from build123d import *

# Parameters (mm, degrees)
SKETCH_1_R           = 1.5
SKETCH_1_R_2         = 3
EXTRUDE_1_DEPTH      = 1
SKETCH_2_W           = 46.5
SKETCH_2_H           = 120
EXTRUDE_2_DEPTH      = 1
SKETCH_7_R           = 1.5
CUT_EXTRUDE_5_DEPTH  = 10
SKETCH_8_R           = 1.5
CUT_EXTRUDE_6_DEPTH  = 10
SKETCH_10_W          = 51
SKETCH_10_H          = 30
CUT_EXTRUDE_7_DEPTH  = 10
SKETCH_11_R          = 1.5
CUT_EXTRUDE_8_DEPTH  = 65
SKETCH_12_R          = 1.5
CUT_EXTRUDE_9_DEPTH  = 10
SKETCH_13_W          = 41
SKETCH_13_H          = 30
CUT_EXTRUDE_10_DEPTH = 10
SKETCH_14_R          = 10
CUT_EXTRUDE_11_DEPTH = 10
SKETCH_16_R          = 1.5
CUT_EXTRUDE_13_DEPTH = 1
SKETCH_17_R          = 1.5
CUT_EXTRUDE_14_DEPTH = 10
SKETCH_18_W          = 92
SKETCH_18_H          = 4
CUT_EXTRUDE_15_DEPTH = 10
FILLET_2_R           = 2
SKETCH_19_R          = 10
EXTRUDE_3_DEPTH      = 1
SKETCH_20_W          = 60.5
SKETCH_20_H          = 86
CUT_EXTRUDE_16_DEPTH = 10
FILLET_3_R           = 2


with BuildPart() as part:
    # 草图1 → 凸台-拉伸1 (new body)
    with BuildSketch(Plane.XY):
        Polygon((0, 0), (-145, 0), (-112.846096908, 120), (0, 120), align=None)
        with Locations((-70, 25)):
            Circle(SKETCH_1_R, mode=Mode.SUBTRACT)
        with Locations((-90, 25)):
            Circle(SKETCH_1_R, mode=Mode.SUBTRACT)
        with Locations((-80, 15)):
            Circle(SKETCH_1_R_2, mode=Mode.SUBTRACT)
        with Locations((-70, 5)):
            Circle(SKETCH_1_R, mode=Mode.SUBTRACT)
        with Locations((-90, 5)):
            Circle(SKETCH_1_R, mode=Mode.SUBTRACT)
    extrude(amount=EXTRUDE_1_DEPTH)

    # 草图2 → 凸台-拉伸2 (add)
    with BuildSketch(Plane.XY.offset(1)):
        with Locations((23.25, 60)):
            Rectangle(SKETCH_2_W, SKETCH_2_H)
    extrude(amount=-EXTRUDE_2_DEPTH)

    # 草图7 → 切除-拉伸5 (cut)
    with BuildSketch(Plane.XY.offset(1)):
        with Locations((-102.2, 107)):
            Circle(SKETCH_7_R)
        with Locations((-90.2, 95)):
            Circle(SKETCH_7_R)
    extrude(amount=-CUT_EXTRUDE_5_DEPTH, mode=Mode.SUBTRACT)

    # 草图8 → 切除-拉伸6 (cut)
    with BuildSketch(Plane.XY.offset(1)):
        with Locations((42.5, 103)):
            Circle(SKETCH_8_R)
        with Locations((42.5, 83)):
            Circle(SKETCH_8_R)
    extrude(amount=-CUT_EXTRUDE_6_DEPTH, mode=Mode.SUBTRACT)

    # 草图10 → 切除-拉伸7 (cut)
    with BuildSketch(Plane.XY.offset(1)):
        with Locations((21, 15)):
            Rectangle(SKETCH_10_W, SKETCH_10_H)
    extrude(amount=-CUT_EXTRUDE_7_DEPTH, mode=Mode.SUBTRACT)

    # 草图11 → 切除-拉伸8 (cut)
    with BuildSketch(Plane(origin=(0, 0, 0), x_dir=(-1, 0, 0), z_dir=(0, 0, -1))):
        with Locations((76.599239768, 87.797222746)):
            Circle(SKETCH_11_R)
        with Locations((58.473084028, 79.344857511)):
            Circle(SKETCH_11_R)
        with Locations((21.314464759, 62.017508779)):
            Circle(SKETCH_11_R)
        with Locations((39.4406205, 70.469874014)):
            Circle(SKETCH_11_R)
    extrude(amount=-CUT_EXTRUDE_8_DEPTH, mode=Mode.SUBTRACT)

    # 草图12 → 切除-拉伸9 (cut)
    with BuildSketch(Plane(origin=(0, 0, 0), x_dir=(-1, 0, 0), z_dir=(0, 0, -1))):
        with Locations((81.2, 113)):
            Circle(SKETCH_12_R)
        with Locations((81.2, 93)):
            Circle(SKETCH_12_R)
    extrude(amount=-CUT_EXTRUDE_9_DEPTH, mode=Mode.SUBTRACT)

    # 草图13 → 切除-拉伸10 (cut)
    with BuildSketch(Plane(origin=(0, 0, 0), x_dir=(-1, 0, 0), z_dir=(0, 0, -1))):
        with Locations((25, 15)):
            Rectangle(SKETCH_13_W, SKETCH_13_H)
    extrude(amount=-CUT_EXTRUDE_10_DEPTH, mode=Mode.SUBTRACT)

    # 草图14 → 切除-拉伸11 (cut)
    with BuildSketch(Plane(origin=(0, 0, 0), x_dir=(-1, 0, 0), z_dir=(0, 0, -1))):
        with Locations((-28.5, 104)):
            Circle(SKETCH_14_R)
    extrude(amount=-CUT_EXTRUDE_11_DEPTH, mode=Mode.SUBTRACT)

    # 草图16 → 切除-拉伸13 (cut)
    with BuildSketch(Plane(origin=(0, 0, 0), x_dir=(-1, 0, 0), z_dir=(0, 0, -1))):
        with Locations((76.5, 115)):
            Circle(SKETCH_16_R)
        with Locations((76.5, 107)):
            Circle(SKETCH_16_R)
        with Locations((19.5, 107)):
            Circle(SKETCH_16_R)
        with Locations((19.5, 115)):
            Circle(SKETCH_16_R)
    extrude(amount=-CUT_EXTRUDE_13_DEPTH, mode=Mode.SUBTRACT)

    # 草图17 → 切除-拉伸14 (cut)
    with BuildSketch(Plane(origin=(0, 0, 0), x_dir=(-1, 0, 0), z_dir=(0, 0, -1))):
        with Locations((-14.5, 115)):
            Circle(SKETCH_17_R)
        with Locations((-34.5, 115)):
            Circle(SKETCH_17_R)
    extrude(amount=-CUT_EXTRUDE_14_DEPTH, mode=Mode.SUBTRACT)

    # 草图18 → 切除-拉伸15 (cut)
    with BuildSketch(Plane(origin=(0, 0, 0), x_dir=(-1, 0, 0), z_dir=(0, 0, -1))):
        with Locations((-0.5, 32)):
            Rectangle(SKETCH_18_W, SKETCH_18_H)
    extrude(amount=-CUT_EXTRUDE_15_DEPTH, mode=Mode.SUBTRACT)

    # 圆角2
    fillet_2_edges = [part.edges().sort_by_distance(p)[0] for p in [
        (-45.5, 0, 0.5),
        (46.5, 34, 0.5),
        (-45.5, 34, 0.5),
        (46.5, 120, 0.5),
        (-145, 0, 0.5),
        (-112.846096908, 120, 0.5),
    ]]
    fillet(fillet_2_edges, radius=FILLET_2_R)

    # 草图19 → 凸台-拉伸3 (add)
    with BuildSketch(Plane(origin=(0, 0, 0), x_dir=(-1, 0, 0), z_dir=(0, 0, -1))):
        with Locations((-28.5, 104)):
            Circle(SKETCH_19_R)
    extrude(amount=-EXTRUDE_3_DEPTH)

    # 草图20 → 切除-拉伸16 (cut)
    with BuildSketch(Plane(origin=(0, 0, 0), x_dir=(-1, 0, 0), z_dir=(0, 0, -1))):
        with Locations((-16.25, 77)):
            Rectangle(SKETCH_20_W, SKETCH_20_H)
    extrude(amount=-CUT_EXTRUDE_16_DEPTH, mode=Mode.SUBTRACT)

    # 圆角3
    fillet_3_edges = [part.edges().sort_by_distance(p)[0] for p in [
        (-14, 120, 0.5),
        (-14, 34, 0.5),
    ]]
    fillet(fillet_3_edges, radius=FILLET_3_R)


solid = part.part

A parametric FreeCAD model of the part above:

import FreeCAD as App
import Part
import Sketcher
Q = App.Units.Quantity


def edges_at(feature, points):
    """Names of the edges that pass closest to the given points."""
    edges = feature.Shape.Edges
    near = lambda p: min(range(len(edges)), key=lambda i: edges[i].distToShape(Part.Vertex(*p))[0])
    return sorted({f"Edge{near(p) + 1}" for p in points})

doc = App.newDocument("Part")
params = doc.addObject("Spreadsheet::Sheet", "Params")
for row, (alias, value) in enumerate([
    ("sketch1_diameter", "3 mm"),
    ("sketch1_diameter2", "6 mm"),
    ("sketch1_width", "145 mm"),
    ("sketch1_height", "120 mm"),
    ("pad1_length", "1 mm"),
    ("sketch2_height", "120 mm"),
    ("sketch2_width", "46.5 mm"),
    ("pad2_length", "1 mm"),
    ("sketch3_diameter", "3 mm"),
    ("pocket1_length", "10 mm"),
    ("sketch4_diameter", "3 mm"),
    ("pocket2_length", "10 mm"),
    ("sketch5_width", "51 mm"),
    ("sketch5_height", "30 mm"),
    ("pocket3_length", "10 mm"),
    ("sketch6_diameter", "3 mm"),
    ("pocket4_length", "65 mm"),
    ("sketch7_diameter", "3 mm"),
    ("pocket5_length", "10 mm"),
    ("sketch8_width", "41 mm"),
    ("sketch8_height", "30 mm"),
    ("pocket6_length", "10 mm"),
    ("sketch9_diameter", "20 mm"),
    ("pocket7_length", "10 mm"),
    ("sketch10_diameter", "3 mm"),
    ("pocket8_length", "1 mm"),
    ("sketch11_diameter", "3 mm"),
    ("pocket9_length", "10 mm"),
    ("sketch12_width", "92 mm"),
    ("sketch12_height", "4 mm"),
    ("pocket10_length", "10 mm"),
    ("fillet_radius", "2 mm"),
    ("sketch13_diameter", "20 mm"),
    ("pad3_length", "1 mm"),
    ("sketch14_height", "86 mm"),
    ("sketch14_width", "60.5 mm"),
    ("pocket11_length", "10 mm"),
    ("fillet2_radius", "2 mm"),
], start=1):
    params.set(f"A{row}", alias)
    params.set(f"B{row}", "=" + value)
    params.setAlias(f"B{row}", alias)

body = doc.addObject("PartDesign::Body", "Body")

sketch1 = body.newObject("Sketcher::SketchObject", "Sketch")
sketch1.AttachmentSupport = (doc.getObject("XY_Plane"), [""])
sketch1.MapMode = "FlatFace"
sketch1.addGeometry([
    Part.LineSegment(App.Vector(-145, 0, 0), App.Vector(0, 0, 0)),
    Part.LineSegment(App.Vector(0, 0, 0), App.Vector(0, 120, 0)),
    Part.LineSegment(App.Vector(0, 120, 0), App.Vector(-112.8, 120, 0)),
    Part.LineSegment(App.Vector(-112.8, 120, 0), App.Vector(-145, 0, 0)),
    Part.Circle(App.Vector(-70, 5, 0), App.Vector(0, 0, 1), 1.5),
    Part.Circle(App.Vector(-90, 5, 0), App.Vector(0, 0, 1), 1.5),
    Part.Circle(App.Vector(-70, 25, 0), App.Vector(0, 0, 1), 1.5),
    Part.Circle(App.Vector(-80, 15, 0), App.Vector(0, 0, 1), 3),
    Part.Circle(App.Vector(-90, 25, 0), App.Vector(0, 0, 1), 1.5),
], False)
sketch1.addConstraint([
    Sketcher.Constraint("Coincident", 0, 2, 1, 1),
    Sketcher.Constraint("Coincident", 1, 2, 2, 1),
    Sketcher.Constraint("Coincident", 2, 2, 3, 1),
    Sketcher.Constraint("Coincident", 3, 2, 0, 1),
    Sketcher.Constraint("Horizontal", 0),
    Sketcher.Constraint("Vertical", 1),
    Sketcher.Constraint("Horizontal", 2),
    Sketcher.Constraint("Coincident", 0, 2, -1, 1),
    Sketcher.Constraint("Equal", 4, 5),
    Sketcher.Constraint("Equal", 5, 6),
    Sketcher.Constraint("Equal", 6, 8),
    Sketcher.Constraint("Horizontal", 4, 3, 5, 3),
    Sketcher.Constraint("Horizontal", 6, 3, 8, 3),
    Sketcher.Constraint("Vertical", 4, 3, 6, 3),
    Sketcher.Constraint("Vertical", 5, 3, 8, 3),
    Sketcher.Constraint("Diameter", 4, 3.0),
    Sketcher.Constraint("Diameter", 7, 6.0),
    Sketcher.Constraint("DistanceX", 0, 1, 0, 2, 145.0),
    Sketcher.Constraint("DistanceY", 1, 1, 1, 2, 120.0),
    Sketcher.Constraint("Angle", 3, Q("-105 deg")),
    Sketcher.Constraint("DistanceX", 4, 3, -1, 1, 70.0),
    Sketcher.Constraint("DistanceY", -1, 1, 4, 3, 5.0),
    Sketcher.Constraint("DistanceX", 5, 3, -1, 1, 90.0),
    Sketcher.Constraint("DistanceY", -1, 1, 6, 3, 25.0),
    Sketcher.Constraint("DistanceX", 7, 3, -1, 1, 80.0),
    Sketcher.Constraint("DistanceY", -1, 1, 7, 3, 15.0),
])
sketch1.setExpression("Constraints[15]", "Params.sketch1_diameter")
sketch1.setExpression("Constraints[16]", "Params.sketch1_diameter2")
sketch1.setExpression("Constraints[17]", "Params.sketch1_width")
sketch1.setExpression("Constraints[18]", "Params.sketch1_height")
pad1 = body.newObject("PartDesign::Pad", "Pad")
pad1.Profile = sketch1
pad1.setExpression("Length", "Params.pad1_length")

sketch2 = body.newObject("Sketcher::SketchObject", "Sketch001")
sketch2.AttachmentSupport = (doc.getObject("XY_Plane"), [""])
sketch2.MapMode = "FlatFace"
sketch2.AttachmentOffset = App.Placement(App.Vector(0, 0, 1), App.Rotation())
sketch2.addGeometry([
    Part.LineSegment(App.Vector(0, 120, 0), App.Vector(0, 0, 0)),
    Part.LineSegment(App.Vector(0, 0, 0), App.Vector(46, 0, 0)),
    Part.LineSegment(App.Vector(46, 0, 0), App.Vector(46, 120, 0)),
    Part.LineSegment(App.Vector(46, 120, 0), App.Vector(0, 120, 0)),
], False)
sketch2.addConstraint([
    Sketcher.Constraint("Coincident", 0, 2, 1, 1),
    Sketcher.Constraint("Coincident", 1, 2, 2, 1),
    Sketcher.Constraint("Coincident", 2, 2, 3, 1),
    Sketcher.Constraint("Coincident", 3, 2, 0, 1),
    Sketcher.Constraint("Vertical", 0),
    Sketcher.Constraint("Horizontal", 1),
    Sketcher.Constraint("Vertical", 2),
    Sketcher.Constraint("Horizontal", 3),
    Sketcher.Constraint("Coincident", 0, 2, -1, 1),
    Sketcher.Constraint("DistanceY", 0, 2, 0, 1, 120.0),
    Sketcher.Constraint("DistanceX", 1, 1, 1, 2, 46.5),
])
sketch2.setExpression("Constraints[9]", "Params.sketch2_height")
sketch2.setExpression("Constraints[10]", "Params.sketch2_width")
pad2 = body.newObject("PartDesign::Pad", "Pad001")
pad2.Profile = sketch2
pad2.setExpression("Length", "Params.pad2_length")
pad2.Reversed = True

sketch3 = body.newObject("Sketcher::SketchObject", "Sketch002")
sketch3.AttachmentSupport = (doc.getObject("XY_Plane"), [""])
sketch3.MapMode = "FlatFace"
sketch3.AttachmentOffset = App.Placement(App.Vector(0, 0, 1), App.Rotation())
sketch3.addGeometry([
    Part.Circle(App.Vector(-102.2, 107, 0), App.Vector(0, 0, 1), 1.5),
    Part.Circle(App.Vector(-90.2, 95, 0), App.Vector(0, 0, 1), 1.5),
], False)
sketch3.addConstraint([
    Sketcher.Constraint("Equal", 0, 1),
    Sketcher.Constraint("Diameter", 0, 3.0),
    Sketcher.Constraint("DistanceY", -1, 1, 0, 3, 107.0),
    Sketcher.Constraint("DistanceY", -1, 1, 1, 3, 95.0),
    Sketcher.Constraint("DistanceX", 0, 3, 1, 3, 12.0),
    Sketcher.Constraint("DistanceX", 0, 3, -1, 1, 102.2),
])
sketch3.setExpression("Constraints[1]", "Params.sketch3_diameter")
pocket1 = body.newObject("PartDesign::Pocket", "Pocket")
pocket1.Profile = sketch3
pocket1.setExpression("Length", "Params.pocket1_length")

sketch4 = body.newObject("Sketcher::SketchObject", "Sketch003")
sketch4.AttachmentSupport = (doc.getObject("XY_Plane"), [""])
sketch4.MapMode = "FlatFace"
sketch4.AttachmentOffset = App.Placement(App.Vector(0, 0, 1), App.Rotation())
sketch4.addGeometry([
    Part.Circle(App.Vector(42.5, 103, 0), App.Vector(0, 0, 1), 1.5),
    Part.Circle(App.Vector(42.5, 83, 0), App.Vector(0, 0, 1), 1.5),
], False)
sketch4.addConstraint([
    Sketcher.Constraint("Equal", 0, 1),
    Sketcher.Constraint("Vertical", 0, 3, 1, 3),
    Sketcher.Constraint("Diameter", 0, 3.0),
    Sketcher.Constraint("DistanceY", -1, 1, 0, 3, 103.0),
    Sketcher.Constraint("DistanceY", -1, 1, 1, 3, 83.0),
    Sketcher.Constraint("DistanceX", -1, 1, 0, 3, 42.5),
])
sketch4.setExpression("Constraints[2]", "Params.sketch4_diameter")
pocket2 = body.newObject("PartDesign::Pocket", "Pocket001")
pocket2.Profile = sketch4
pocket2.setExpression("Length", "Params.pocket2_length")

sketch5 = body.newObject("Sketcher::SketchObject", "Sketch004")
sketch5.AttachmentSupport = (doc.getObject("XY_Plane"), [""])
sketch5.MapMode = "FlatFace"
sketch5.AttachmentOffset = App.Placement(App.Vector(0, 0, 1), App.Rotation())
sketch5.addGeometry([
    Part.LineSegment(App.Vector(-4, 30, 0), App.Vector(-4, 0, 0)),
    Part.LineSegment(App.Vector(-4, 0, 0), App.Vector(46, 0, 0)),
    Part.LineSegment(App.Vector(46, 0, 0), App.Vector(46, 30, 0)),
    Part.LineSegment(App.Vector(46, 30, 0), App.Vector(-4, 30, 0)),
], False)
sketch5.addConstraint([
    Sketcher.Constraint("Coincident", 0, 2, 1, 1),
    Sketcher.Constraint("Coincident", 1, 2, 2, 1),
    Sketcher.Constraint("Coincident", 2, 2, 3, 1),
    Sketcher.Constraint("Coincident", 3, 2, 0, 1),
    Sketcher.Constraint("Vertical", 0),
    Sketcher.Constraint("Horizontal", 1),
    Sketcher.Constraint("Vertical", 2),
    Sketcher.Constraint("Horizontal", 3),
    Sketcher.Constraint("PointOnObject", 0, 2, -1),
    Sketcher.Constraint("DistanceX", 1, 1, 1, 2, 51.0),
    Sketcher.Constraint("DistanceY", 0, 2, 0, 1, 30.0),
    Sketcher.Constraint("DistanceX", 0, 2, -1, 1, 4.5),
])
sketch5.setExpression("Constraints[9]", "Params.sketch5_width")
sketch5.setExpression("Constraints[10]", "Params.sketch5_height")
pocket3 = body.newObject("PartDesign::Pocket", "Pocket002")
pocket3.Profile = sketch5
pocket3.setExpression("Length", "Params.pocket3_length")

sketch6 = body.newObject("Sketcher::SketchObject", "Sketch005")
sketch6.AttachmentSupport = (doc.getObject("XY_Plane"), [""])
sketch6.MapMode = "FlatFace"
sketch6.addGeometry([
    Part.Circle(App.Vector(-76.6, 87.8, 0), App.Vector(0, 0, 1), 1.5),
    Part.Circle(App.Vector(-58.5, 79.3, 0), App.Vector(0, 0, 1), 1.5),
    Part.Circle(App.Vector(-21.3, 62, 0), App.Vector(0, 0, 1), 1.5),
    Part.Circle(App.Vector(-39.4, 70.5, 0), App.Vector(0, 0, 1), 1.5),
], False)
sketch6.addConstraint([
    Sketcher.Constraint("Equal", 0, 1),
    Sketcher.Constraint("Equal", 1, 2),
    Sketcher.Constraint("Equal", 2, 3),
    Sketcher.Constraint("Diameter", 0, 3.0),
    Sketcher.Constraint("DistanceX", 0, 3, -1, 1, 76.59924),
    Sketcher.Constraint("DistanceY", -1, 1, 2, 3, 62.017509),
    Sketcher.Constraint("DistanceX", 3, 3, -1, 1, 39.440621),
    Sketcher.Constraint("DistanceX", 1, 3, 2, 3, 37.158619),
    Sketcher.Constraint("DistanceY", 2, 3, 1, 3, 17.327349),
    Sketcher.Constraint("DistanceY", 3, 3, 0, 3, 17.327349),
    Sketcher.Constraint("DistanceY", -1, 1, 0, 3, 87.797223),
    Sketcher.Constraint("DistanceX", 1, 3, -1, 1, 58.473084),
])
sketch6.setExpression("Constraints[3]", "Params.sketch6_diameter")
pocket4 = body.newObject("PartDesign::Pocket", "Pocket003")
pocket4.Profile = sketch6
pocket4.setExpression("Length", "Params.pocket4_length")
pocket4.Reversed = True

sketch7 = body.newObject("Sketcher::SketchObject", "Sketch006")
sketch7.AttachmentSupport = (doc.getObject("XY_Plane"), [""])
sketch7.MapMode = "FlatFace"
sketch7.addGeometry([
    Part.Circle(App.Vector(-81.2, 113, 0), App.Vector(0, 0, 1), 1.5),
    Part.Circle(App.Vector(-81.2, 93, 0), App.Vector(0, 0, 1), 1.5),
], False)
sketch7.addConstraint([
    Sketcher.Constraint("Equal", 0, 1),
    Sketcher.Constraint("Vertical", 0, 3, 1, 3),
    Sketcher.Constraint("Diameter", 0, 3.0),
    Sketcher.Constraint("DistanceY", -1, 1, 0, 3, 113.0),
    Sketcher.Constraint("DistanceY", -1, 1, 1, 3, 93.0),
    Sketcher.Constraint("DistanceX", 0, 3, -1, 1, 81.2),
])
sketch7.setExpression("Constraints[2]", "Params.sketch7_diameter")
pocket5 = body.newObject("PartDesign::Pocket", "Pocket004")
pocket5.Profile = sketch7
pocket5.setExpression("Length", "Params.pocket5_length")
pocket5.Reversed = True

sketch8 = body.newObject("Sketcher::SketchObject", "Sketch007")
sketch8.AttachmentSupport = (doc.getObject("XY_Plane"), [""])
sketch8.MapMode = "FlatFace"
sketch8.addGeometry([
    Part.LineSegment(App.Vector(-4, 30, 0), App.Vector(-4, 0, 0)),
    Part.LineSegment(App.Vector(-4, 0, 0), App.Vector(-46, 0, 0)),
    Part.LineSegment(App.Vector(-46, 0, 0), App.Vector(-46, 30, 0)),
    Part.LineSegment(App.Vector(-46, 30, 0), App.Vector(-4, 30, 0)),
], False)
sketch8.addConstraint([
    Sketcher.Constraint("Coincident", 0, 2, 1, 1),
    Sketcher.Constraint("Coincident", 1, 2, 2, 1),
    Sketcher.Constraint("Coincident", 2, 2, 3, 1),
    Sketcher.Constraint("Coincident", 3, 2, 0, 1),
    Sketcher.Constraint("Vertical", 0),
    Sketcher.Constraint("Horizontal", 1),
    Sketcher.Constraint("Vertical", 2),
    Sketcher.Constraint("Horizontal", 3),
    Sketcher.Constraint("PointOnObject", 0, 2, -1),
    Sketcher.Constraint("DistanceX", 1, 2, 1, 1, 41.0),
    Sketcher.Constraint("DistanceY", 0, 2, 0, 1, 30.0),
    Sketcher.Constraint("DistanceX", 0, 2, -1, 1, 4.5),
])
sketch8.setExpression("Constraints[9]", "Params.sketch8_width")
sketch8.setExpression("Constraints[10]", "Params.sketch8_height")
pocket6 = body.newObject("PartDesign::Pocket", "Pocket005")
pocket6.Profile = sketch8
pocket6.setExpression("Length", "Params.pocket6_length")
pocket6.Reversed = True

sketch9 = body.newObject("Sketcher::SketchObject", "Sketch008")
sketch9.AttachmentSupport = (doc.getObject("XY_Plane"), [""])
sketch9.MapMode = "FlatFace"
sketch9.addGeometry(Part.Circle(App.Vector(28, 104, 0), App.Vector(0, 0, 1), 10), False)
sketch9.addConstraint([
    Sketcher.Constraint("Diameter", 0, 20.0),
    Sketcher.Constraint("DistanceY", -1, 1, 0, 3, 104.0),
    Sketcher.Constraint("DistanceX", -1, 1, 0, 3, 28.5),
])
sketch9.setExpression("Constraints[0]", "Params.sketch9_diameter")
pocket7 = body.newObject("PartDesign::Pocket", "Pocket006")
pocket7.Profile = sketch9
pocket7.setExpression("Length", "Params.pocket7_length")
pocket7.Reversed = True

sketch10 = body.newObject("Sketcher::SketchObject", "Sketch009")
sketch10.AttachmentSupport = (doc.getObject("XY_Plane"), [""])
sketch10.MapMode = "FlatFace"
sketch10.addGeometry([
    Part.Circle(App.Vector(-76.5, 115, 0), App.Vector(0, 0, 1), 1.5),
    Part.Circle(App.Vector(-76.5, 107, 0), App.Vector(0, 0, 1), 1.5),
    Part.Circle(App.Vector(-19.5, 107, 0), App.Vector(0, 0, 1), 1.5),
    Part.Circle(App.Vector(-19.5, 115, 0), App.Vector(0, 0, 1), 1.5),
], False)
sketch10.addConstraint([
    Sketcher.Constraint("Equal", 0, 1),
    Sketcher.Constraint("Equal", 1, 2),
    Sketcher.Constraint("Equal", 2, 3),
    Sketcher.Constraint("Horizontal", 1, 3, 2, 3),
    Sketcher.Constraint("Horizontal", 0, 3, 3, 3),
    Sketcher.Constraint("Vertical", 0, 3, 1, 3),
    Sketcher.Constraint("Vertical", 2, 3, 3, 3),
    Sketcher.Constraint("Diameter", 0, 3.0),
    Sketcher.Constraint("DistanceY", -1, 1, 0, 3, 115.0),
    Sketcher.Constraint("DistanceY", -1, 1, 1, 3, 107.0),
    Sketcher.Constraint("DistanceX", 1, 3, 2, 3, 57.0),
    Sketcher.Constraint("DistanceX", 0, 3, -1, 1, 76.5),
])
sketch10.setExpression("Constraints[7]", "Params.sketch10_diameter")
pocket8 = body.newObject("PartDesign::Pocket", "Pocket007")
pocket8.Profile = sketch10
pocket8.setExpression("Length", "Params.pocket8_length")
pocket8.Reversed = True

sketch11 = body.newObject("Sketcher::SketchObject", "Sketch010")
sketch11.AttachmentSupport = (doc.getObject("XY_Plane"), [""])
sketch11.MapMode = "FlatFace"
sketch11.addGeometry([
    Part.Circle(App.Vector(14.5, 115, 0), App.Vector(0, 0, 1), 1.5),
    Part.Circle(App.Vector(34.5, 115, 0), App.Vector(0, 0, 1), 1.5),
], False)
sketch11.addConstraint([
    Sketcher.Constraint("Equal", 0, 1),
    Sketcher.Constraint("Horizontal", 0, 3, 1, 3),
    Sketcher.Constraint("Diameter", 0, 3.0),
    Sketcher.Constraint("DistanceY", -1, 1, 0, 3, 115.0),
    Sketcher.Constraint("DistanceX", 0, 3, 1, 3, 20.0),
    Sketcher.Constraint("DistanceX", -1, 1, 0, 3, 14.5),
])
sketch11.setExpression("Constraints[2]", "Params.sketch11_diameter")
pocket9 = body.newObject("PartDesign::Pocket", "Pocket008")
pocket9.Profile = sketch11
pocket9.setExpression("Length", "Params.pocket9_length")
pocket9.Reversed = True

sketch12 = body.newObject("Sketcher::SketchObject", "Sketch011")
sketch12.AttachmentSupport = (doc.getObject("XY_Plane"), [""])
sketch12.MapMode = "FlatFace"
sketch12.addGeometry([
    Part.LineSegment(App.Vector(46.5, 34, 0), App.Vector(46.5, 30, 0)),
    Part.LineSegment(App.Vector(46.5, 30, 0), App.Vector(-45.5, 30, 0)),
    Part.LineSegment(App.Vector(-45.5, 30, 0), App.Vector(-45.5, 34, 0)),
    Part.LineSegment(App.Vector(-45.5, 34, 0), App.Vector(46.5, 34, 0)),
], False)
sketch12.addConstraint([
    Sketcher.Constraint("Coincident", 0, 2, 1, 1),
    Sketcher.Constraint("Coincident", 1, 2, 2, 1),
    Sketcher.Constraint("Coincident", 2, 2, 3, 1),
    Sketcher.Constraint("Coincident", 3, 2, 0, 1),
    Sketcher.Constraint("Vertical", 0),
    Sketcher.Constraint("Horizontal", 1),
    Sketcher.Constraint("Vertical", 2),
    Sketcher.Constraint("Horizontal", 3),
    Sketcher.Constraint("DistanceX", 1, 2, 1, 1, 92.0),
    Sketcher.Constraint("DistanceY", 0, 2, 0, 1, 4.0),
    Sketcher.Constraint("DistanceY", -1, 1, 0, 2, 30.0),
    Sketcher.Constraint("DistanceX", -1, 1, 0, 2, 46.5),
])
sketch12.setExpression("Constraints[8]", "Params.sketch12_width")
sketch12.setExpression("Constraints[9]", "Params.sketch12_height")
pocket10 = body.newObject("PartDesign::Pocket", "Pocket009")
pocket10.Profile = sketch12
pocket10.setExpression("Length", "Params.pocket10_length")
pocket10.Reversed = True
doc.recompute()

fillet = body.newObject("PartDesign::Fillet", "Fillet")
fillet.Base = (pocket10, edges_at(pocket10, [
    (-45.5, 0, 0.5),
    (46.5, 34, 0.5),
    (-45.5, 34, 0.5),
    (46.5, 120, 0.5),
    (-145, 0, 0.5),
    (-112.846, 120, 0.5),
]))
fillet.setExpression("Radius", "Params.fillet_radius")

sketch13 = body.newObject("Sketcher::SketchObject", "Sketch012")
sketch13.AttachmentSupport = (doc.getObject("XY_Plane"), [""])
sketch13.MapMode = "FlatFace"
sketch13.addGeometry(Part.Circle(App.Vector(28, 104, 0), App.Vector(0, 0, 1), 10), False)
sketch13.addConstraint([
    Sketcher.Constraint("Diameter", 0, 20.0),
    Sketcher.Constraint("DistanceY", -1, 1, 0, 3, 104.0),
    Sketcher.Constraint("DistanceX", -1, 1, 0, 3, 28.5),
])
sketch13.setExpression("Constraints[0]", "Params.sketch13_diameter")
pad3 = body.newObject("PartDesign::Pad", "Pad002")
pad3.Profile = sketch13
pad3.setExpression("Length", "Params.pad3_length")

sketch14 = body.newObject("Sketcher::SketchObject", "Sketch013")
sketch14.AttachmentSupport = (doc.getObject("XY_Plane"), [""])
sketch14.MapMode = "FlatFace"
sketch14.addGeometry([
    Part.LineSegment(App.Vector(46, 120, 0), App.Vector(46, 34, 0)),
    Part.LineSegment(App.Vector(46, 34, 0), App.Vector(-14, 34, 0)),
    Part.LineSegment(App.Vector(-14, 34, 0), App.Vector(-14, 120, 0)),
    Part.LineSegment(App.Vector(-14, 120, 0), App.Vector(46, 120, 0)),
], False)
sketch14.addConstraint([
    Sketcher.Constraint("Coincident", 0, 2, 1, 1),
    Sketcher.Constraint("Coincident", 1, 2, 2, 1),
    Sketcher.Constraint("Coincident", 2, 2, 3, 1),
    Sketcher.Constraint("Coincident", 3, 2, 0, 1),
    Sketcher.Constraint("Vertical", 0),
    Sketcher.Constraint("Horizontal", 1),
    Sketcher.Constraint("Vertical", 2),
    Sketcher.Constraint("Horizontal", 3),
    Sketcher.Constraint("DistanceY", 0, 2, 0, 1, 86.0),
    Sketcher.Constraint("DistanceX", 1, 2, 1, 1, 60.5),
    Sketcher.Constraint("DistanceY", -1, 1, 0, 2, 34.0),
    Sketcher.Constraint("DistanceX", 1, 2, -1, 1, 14.0),
])
sketch14.setExpression("Constraints[8]", "Params.sketch14_height")
sketch14.setExpression("Constraints[9]", "Params.sketch14_width")
pocket11 = body.newObject("PartDesign::Pocket", "Pocket010")
pocket11.Profile = sketch14
pocket11.setExpression("Length", "Params.pocket11_length")
pocket11.Reversed = True
doc.recompute()

fillet2 = body.newObject("PartDesign::Fillet", "Fillet001")
fillet2.Base = (pocket11, edges_at(pocket11, [(-14, 120, 0.5), (-14, 34, 0.5)]))
fillet2.setExpression("Radius", "Params.fillet2_radius")

doc.recompute()
